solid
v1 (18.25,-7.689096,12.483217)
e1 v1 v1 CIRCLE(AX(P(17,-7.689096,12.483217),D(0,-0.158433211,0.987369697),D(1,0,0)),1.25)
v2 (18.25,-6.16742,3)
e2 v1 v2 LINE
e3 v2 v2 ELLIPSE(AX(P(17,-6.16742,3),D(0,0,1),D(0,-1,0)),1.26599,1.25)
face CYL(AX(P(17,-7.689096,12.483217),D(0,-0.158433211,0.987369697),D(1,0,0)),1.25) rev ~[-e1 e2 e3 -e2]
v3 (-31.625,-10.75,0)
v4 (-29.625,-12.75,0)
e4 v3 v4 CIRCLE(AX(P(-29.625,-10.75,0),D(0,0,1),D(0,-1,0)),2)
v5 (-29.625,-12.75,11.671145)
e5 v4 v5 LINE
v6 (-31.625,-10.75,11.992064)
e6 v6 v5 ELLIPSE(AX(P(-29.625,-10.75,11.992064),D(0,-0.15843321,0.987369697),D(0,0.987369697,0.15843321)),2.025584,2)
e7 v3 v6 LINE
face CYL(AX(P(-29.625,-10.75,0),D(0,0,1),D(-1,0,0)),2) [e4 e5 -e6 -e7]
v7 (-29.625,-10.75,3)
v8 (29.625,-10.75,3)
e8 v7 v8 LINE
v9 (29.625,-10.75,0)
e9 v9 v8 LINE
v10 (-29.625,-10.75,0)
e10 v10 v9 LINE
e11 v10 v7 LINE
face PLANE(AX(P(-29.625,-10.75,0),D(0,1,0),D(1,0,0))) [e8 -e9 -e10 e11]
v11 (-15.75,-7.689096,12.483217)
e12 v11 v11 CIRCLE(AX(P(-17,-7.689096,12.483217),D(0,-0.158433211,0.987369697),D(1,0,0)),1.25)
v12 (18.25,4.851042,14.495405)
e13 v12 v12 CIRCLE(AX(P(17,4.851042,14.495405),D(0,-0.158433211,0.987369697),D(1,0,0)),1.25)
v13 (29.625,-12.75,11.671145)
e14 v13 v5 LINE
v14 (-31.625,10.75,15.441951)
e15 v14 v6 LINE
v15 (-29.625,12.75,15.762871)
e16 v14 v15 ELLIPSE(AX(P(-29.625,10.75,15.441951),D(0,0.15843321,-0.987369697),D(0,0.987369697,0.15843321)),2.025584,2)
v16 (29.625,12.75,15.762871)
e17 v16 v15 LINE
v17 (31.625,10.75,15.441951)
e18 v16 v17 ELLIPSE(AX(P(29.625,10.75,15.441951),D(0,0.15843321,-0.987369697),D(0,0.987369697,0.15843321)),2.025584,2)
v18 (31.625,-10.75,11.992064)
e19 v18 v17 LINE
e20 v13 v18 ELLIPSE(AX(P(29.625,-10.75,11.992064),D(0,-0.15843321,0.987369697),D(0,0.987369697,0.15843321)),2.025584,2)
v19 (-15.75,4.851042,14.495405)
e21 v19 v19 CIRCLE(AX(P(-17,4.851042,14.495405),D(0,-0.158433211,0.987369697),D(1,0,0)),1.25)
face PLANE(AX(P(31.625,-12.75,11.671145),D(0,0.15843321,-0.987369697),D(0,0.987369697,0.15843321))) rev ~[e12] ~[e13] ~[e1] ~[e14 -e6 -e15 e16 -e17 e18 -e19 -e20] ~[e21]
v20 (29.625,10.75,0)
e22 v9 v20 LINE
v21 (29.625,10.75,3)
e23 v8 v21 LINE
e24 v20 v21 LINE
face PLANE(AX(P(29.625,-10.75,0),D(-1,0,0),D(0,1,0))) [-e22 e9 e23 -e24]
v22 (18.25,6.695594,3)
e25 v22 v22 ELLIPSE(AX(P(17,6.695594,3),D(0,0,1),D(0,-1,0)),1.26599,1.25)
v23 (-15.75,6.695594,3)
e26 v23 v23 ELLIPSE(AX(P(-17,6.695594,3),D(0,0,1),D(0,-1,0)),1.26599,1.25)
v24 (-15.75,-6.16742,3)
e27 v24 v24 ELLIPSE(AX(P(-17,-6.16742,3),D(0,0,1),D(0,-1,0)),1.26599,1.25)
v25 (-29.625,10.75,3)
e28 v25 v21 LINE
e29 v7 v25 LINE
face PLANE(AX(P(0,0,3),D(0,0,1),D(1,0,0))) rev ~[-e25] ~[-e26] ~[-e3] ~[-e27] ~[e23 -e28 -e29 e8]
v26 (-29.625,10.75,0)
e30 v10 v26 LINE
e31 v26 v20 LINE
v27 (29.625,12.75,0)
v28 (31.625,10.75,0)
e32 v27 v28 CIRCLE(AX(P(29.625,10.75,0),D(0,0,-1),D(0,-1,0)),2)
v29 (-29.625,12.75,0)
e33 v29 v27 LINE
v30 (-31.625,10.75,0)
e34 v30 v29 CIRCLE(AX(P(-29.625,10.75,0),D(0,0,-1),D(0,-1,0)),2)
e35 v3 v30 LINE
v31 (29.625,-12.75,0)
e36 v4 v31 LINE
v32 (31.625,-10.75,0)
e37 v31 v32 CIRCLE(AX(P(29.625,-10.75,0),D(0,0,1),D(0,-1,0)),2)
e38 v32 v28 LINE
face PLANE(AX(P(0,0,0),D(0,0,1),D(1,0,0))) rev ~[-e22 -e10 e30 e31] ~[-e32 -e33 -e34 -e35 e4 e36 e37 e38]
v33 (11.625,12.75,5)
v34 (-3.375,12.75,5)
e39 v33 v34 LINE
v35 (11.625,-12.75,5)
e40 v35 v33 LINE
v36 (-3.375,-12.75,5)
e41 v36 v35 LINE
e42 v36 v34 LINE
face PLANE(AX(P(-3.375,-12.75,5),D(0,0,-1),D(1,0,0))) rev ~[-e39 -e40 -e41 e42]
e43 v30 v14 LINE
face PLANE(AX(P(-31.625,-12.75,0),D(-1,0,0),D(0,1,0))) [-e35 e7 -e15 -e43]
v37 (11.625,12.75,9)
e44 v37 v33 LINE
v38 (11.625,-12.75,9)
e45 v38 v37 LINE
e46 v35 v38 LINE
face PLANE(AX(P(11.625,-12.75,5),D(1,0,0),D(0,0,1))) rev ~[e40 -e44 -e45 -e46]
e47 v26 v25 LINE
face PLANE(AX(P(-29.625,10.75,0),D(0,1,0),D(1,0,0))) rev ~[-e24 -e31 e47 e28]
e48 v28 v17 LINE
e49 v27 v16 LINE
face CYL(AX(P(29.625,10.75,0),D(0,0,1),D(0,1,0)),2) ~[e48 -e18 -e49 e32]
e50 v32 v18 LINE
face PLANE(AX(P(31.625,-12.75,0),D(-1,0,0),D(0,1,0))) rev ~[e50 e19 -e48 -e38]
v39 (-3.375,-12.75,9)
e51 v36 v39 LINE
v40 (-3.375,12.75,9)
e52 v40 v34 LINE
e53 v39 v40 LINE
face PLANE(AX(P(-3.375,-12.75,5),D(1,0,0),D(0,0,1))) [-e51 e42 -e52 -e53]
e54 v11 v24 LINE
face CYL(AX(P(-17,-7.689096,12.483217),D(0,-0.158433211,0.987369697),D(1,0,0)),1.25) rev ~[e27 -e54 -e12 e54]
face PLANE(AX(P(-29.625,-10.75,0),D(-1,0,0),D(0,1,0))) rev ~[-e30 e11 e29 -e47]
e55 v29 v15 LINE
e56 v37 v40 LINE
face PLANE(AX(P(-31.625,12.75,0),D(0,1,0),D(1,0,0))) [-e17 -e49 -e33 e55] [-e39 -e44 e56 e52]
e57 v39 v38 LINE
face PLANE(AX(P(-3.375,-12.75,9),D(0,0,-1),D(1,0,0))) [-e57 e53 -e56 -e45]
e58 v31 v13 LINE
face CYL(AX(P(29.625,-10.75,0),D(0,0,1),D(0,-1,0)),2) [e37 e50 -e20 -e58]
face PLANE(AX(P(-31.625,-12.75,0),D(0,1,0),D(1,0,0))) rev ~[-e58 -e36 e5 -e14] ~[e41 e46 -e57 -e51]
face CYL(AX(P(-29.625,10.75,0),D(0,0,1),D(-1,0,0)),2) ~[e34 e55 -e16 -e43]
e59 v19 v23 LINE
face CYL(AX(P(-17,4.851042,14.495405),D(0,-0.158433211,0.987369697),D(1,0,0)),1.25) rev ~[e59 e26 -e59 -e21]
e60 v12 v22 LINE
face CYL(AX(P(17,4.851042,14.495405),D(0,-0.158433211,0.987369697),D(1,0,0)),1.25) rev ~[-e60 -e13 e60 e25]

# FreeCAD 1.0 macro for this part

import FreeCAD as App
import Part
import Sketcher


def edges_at(feature, points):
    """Names of the edges that pass closest to the given points."""
    edges = feature.Shape.Edges
    near = lambda p: min(range(len(edges)), key=lambda i: edges[i].distToShape(Part.Vertex(*p))[0])
    return sorted({f"Edge{near(p) + 1}" for p in points})


def add_polygon(sketch, points):
    """Adds a closed chain of lines whose ends are joined by coincident constraints."""
    first, n = sketch.GeometryCount, len(points)
    for a, b in zip(points, points[1:] + points[:1]):
        sketch.addGeometry(Part.LineSegment(App.Vector(*a, 0), App.Vector(*b, 0)), False)
    for i in range(n):
        sketch.addConstraint(Sketcher.Constraint("Coincident", first + i, 2, first + (i + 1) % n, 1))

doc = App.newDocument("Part")
params = doc.addObject("Spreadsheet::Sheet", "Params")
for row, (alias, value) in enumerate([
    ("sketch1_height", "25.5 mm"),
    ("sketch1_width", "63.25 mm"),
    ("pad1_length", "20 mm"),
    ("sketch2_height", "21.5 mm"),
    ("sketch2_width", "59.25 mm"),
    ("pocket1_length", "3 mm"),
    ("sketch3_width", "25.5 mm"),
    ("pocket2_length", "64 mm"),
    ("sketch4_width", "15 mm"),
    ("sketch4_height", "4 mm"),
    ("pocket3_length", "30 mm"),
    ("pocket4_length", "70 mm"),
    ("fillet_radius", "2 mm"),
    ("sketch6_diameter", "2.5 mm"),
    ("pocket5_length", "25 mm"),
], start=1):
    params.set(f"A{row}", alias)
    params.set(f"B{row}", "=" + value)
    params.setAlias(f"B{row}", alias)

body = doc.addObject("PartDesign::Body", "Body")

sketch1 = body.newObject("Sketcher::SketchObject", "Sketch")
sketch1.AttachmentSupport = (doc.getObject("XY_Plane"), [""])
sketch1.MapMode = "FlatFace"
add_polygon(sketch1, [(-31.625, 12.75), (-31.625, -12.75), (31.625, -12.75), (31.625, 12.75)])
sketch1.addConstraint([
    Sketcher.Constraint("Vertical", 0),
    Sketcher.Constraint("Horizontal", 1),
    Sketcher.Constraint("Vertical", 2),
    Sketcher.Constraint("Horizontal", 3),
    Sketcher.Constraint("Symmetric", 0, 2, 2, 2, -1, 1),
    Sketcher.Constraint("DistanceY", 0, 2, 0, 1, 25.5),
    Sketcher.Constraint("DistanceX", 1, 1, 1, 2, 63.25),
])
sketch1.setExpression("Constraints[9]", "Params.sketch1_height")
sketch1.setExpression("Constraints[10]", "Params.sketch1_width")
pad1 = body.newObject("PartDesign::Pad", "Pad")
pad1.Profile = sketch1
pad1.setExpression("Length", "Params.pad1_length")

sketch2 = body.newObject("Sketcher::SketchObject", "Sketch001")
sketch2.AttachmentSupport = (doc.getObject("XY_Plane"), [""])
sketch2.MapMode = "FlatFace"
add_polygon(sketch2, [(-29.625, 10.75), (-29.625, -10.75), (29.625, -10.75), (29.625, 10.75)])
sketch2.addConstraint([
    Sketcher.Constraint("Vertical", 0),
    Sketcher.Constraint("Horizontal", 1),
    Sketcher.Constraint("Vertical", 2),
    Sketcher.Constraint("Horizontal", 3),
    Sketcher.Constraint("Symmetric", 0, 2, 2, 2, -1, 1),
    Sketcher.Constraint("DistanceY", 0, 2, 0, 1, 21.5),
    Sketcher.Constraint("DistanceX", 1, 1, 1, 2, 59.25),
])
sketch2.setExpression("Constraints[9]", "Params.sketch2_height")
sketch2.setExpression("Constraints[10]", "Params.sketch2_width")
pocket1 = body.newObject("PartDesign::Pocket", "Pocket")
pocket1.Profile = sketch2
pocket1.setExpression("Length", "Params.pocket1_length")
pocket1.Reversed = True

sketch3 = body.newObject("Sketcher::SketchObject", "Sketch002")
sketch3.AttachmentSupport = (doc.getObject("YZ_Plane"), [""])
sketch3.MapMode = "FlatFace"
sketch3.AttachmentOffset = App.Placement(App.Vector(0, 0, 31.625), App.Rotation())
add_polygon(sketch3, [(-12.75, 15.945613), (12.75, 20), (-12.75, 20)])
sketch3.addConstraint([
    Sketcher.Constraint("Horizontal", 1),
    Sketcher.Constraint("Vertical", 2),
    Sketcher.Constraint("DistanceX", 1, 2, 1, 1, 25.5),
    Sketcher.Constraint("DistanceY", -1, 1, 0, 2, 20.0),
    Sketcher.Constraint("DistanceX", -1, 1, 0, 2, 12.75),
    Sketcher.Constraint("DistanceY", 2, 2, 2, 1, 4.054387),
])
sketch3.setExpression("Constraints[5]", "Params.sketch3_width")
pocket2 = body.newObject("PartDesign::Pocket", "Pocket001")
pocket2.Profile = sketch3
pocket2.setExpression("Length", "Params.pocket2_length")

sketch4 = body.newObject("Sketcher::SketchObject", "Sketch003")
sketch4.AttachmentSupport = (doc.getObject("XZ_Plane"), [""])
sketch4.MapMode = "FlatFace"
sketch4.AttachmentOffset = App.Placement(App.Vector(0, 0, 12.75), App.Rotation())
add_polygon(sketch4, [(-3.375, 9), (-3.375, 5), (11.625, 5), (11.625, 9)])
sketch4.addConstraint([
    Sketcher.Constraint("Vertical", 0),
    Sketcher.Constraint("Horizontal", 1),
    Sketcher.Constraint("Vertical", 2),
    Sketcher.Constraint("Horizontal", 3),
    Sketcher.Constraint("DistanceX", 1, 1, 1, 2, 15.0),
    Sketcher.Constraint("DistanceY", 0, 2, 0, 1, 4.0),
    Sketcher.Constraint("DistanceY", -1, 1, 0, 2, 5.0),
    Sketcher.Constraint("DistanceX", 0, 2, -1, 1, 3.375),
])
sketch4.setExpression("Constraints[8]", "Params.sketch4_width")
sketch4.setExpression("Constraints[9]", "Params.sketch4_height")
pocket3 = body.newObject("PartDesign::Pocket", "Pocket002")
pocket3.Profile = sketch4
pocket3.setExpression("Length", "Params.pocket3_length")

sketch5 = body.newObject("Sketcher::SketchObject", "Sketch004")
sketch5.AttachmentSupport = (doc.getObject("YZ_Plane"), [""])
sketch5.MapMode = "FlatFace"
sketch5.AttachmentOffset = App.Placement(App.Vector(0, 0, 31.625), App.Rotation())
add_polygon(sketch5, [(-12.75, 11.671145), (12.75, 15.762871), (12.75, 20), (-12.75, 15.945613)])
sketch5.addConstraint([
    Sketcher.Constraint("Vertical", 1),
    Sketcher.Constraint("Vertical", 3),
    Sketcher.Constraint("DistanceY", -1, 1, 1, 2, 20.0),
    Sketcher.Constraint("DistanceX", 2, 2, 0, 2, 25.5),
    Sketcher.Constraint("DistanceX", -1, 1, 0, 2, 12.75),
    Sketcher.Constraint("DistanceY", 1, 1, 1, 2, 4.237129),
    Sketcher.Constraint("DistanceY", 3, 2, 3, 1, 4.274468),
    Sketcher.Constraint("DistanceY", 0, 2, 2, 2, 0.182742),
])
pocket4 = body.newObject("PartDesign::Pocket", "Pocket003")
pocket4.Profile = sketch5
pocket4.setExpression("Length", "Params.pocket4_length")
doc.recompute()

fillet = body.newObject("PartDesign::Fillet", "Fillet")
fillet.Base = (pocket4, edges_at(pocket4, [
    (-31.625, 12.75, 7.881),
    (31.625, 12.75, 7.881),
    (-31.625, -12.75, 5.836),
    (31.625, -12.75, 5.836),
]))
fillet.setExpression("Radius", "Params.fillet_radius")

sketch6 = body.newObject("Sketcher::SketchObject", "Sketch005")
sketch6.Placement = App.Placement(App.Vector(0, -2.145781, 13.372696), App.Rotation(App.Vector(1, 0, 0), App.Vector(0, 0.987369697, 0.158433211), App.Vector(0, -0.158433211, 0.987369697), "ZXY"))
sketch6.addGeometry([
    Part.Circle(App.Vector(-17, 7.086326, 0), App.Vector(0, 0, 1), 1.25),
    Part.Circle(App.Vector(-17, -5.614224, 0), App.Vector(0, 0, 1), 1.25),
    Part.Circle(App.Vector(17, 7.086326, 0), App.Vector(0, 0, 1), 1.25),
    Part.Circle(App.Vector(17, -5.614224, 0), App.Vector(0, 0, 1), 1.25),
], False)
sketch6.addConstraint([
    Sketcher.Constraint("Equal", 0, 1),
    Sketcher.Constraint("Equal", 1, 2),
    Sketcher.Constraint("Equal", 2, 3),
    Sketcher.Constraint("Symmetric", 0, 3, 2, 3, -2),
    Sketcher.Constraint("Symmetric", 1, 3, 3, 3, -2),
    Sketcher.Constraint("Vertical", 0, 3, 1, 3),
    Sketcher.Constraint("Diameter", 0, 2.5),
    Sketcher.Constraint("DistanceX", 0, 3, -1, 1, 17.0),
    Sketcher.Constraint("DistanceY", 1, 3, 0, 3, 12.70055),
    Sketcher.Constraint("DistanceY", -1, 1, 0, 3, 7.086326),
])
sketch6.setExpression("Constraints[6]", "Params.sketch6_diameter")
pocket5 = body.newObject("PartDesign::Pocket", "Pocket004")
pocket5.Profile = sketch6
pocket5.setExpression("Length", "Params.pocket5_length")

doc.recompute()
